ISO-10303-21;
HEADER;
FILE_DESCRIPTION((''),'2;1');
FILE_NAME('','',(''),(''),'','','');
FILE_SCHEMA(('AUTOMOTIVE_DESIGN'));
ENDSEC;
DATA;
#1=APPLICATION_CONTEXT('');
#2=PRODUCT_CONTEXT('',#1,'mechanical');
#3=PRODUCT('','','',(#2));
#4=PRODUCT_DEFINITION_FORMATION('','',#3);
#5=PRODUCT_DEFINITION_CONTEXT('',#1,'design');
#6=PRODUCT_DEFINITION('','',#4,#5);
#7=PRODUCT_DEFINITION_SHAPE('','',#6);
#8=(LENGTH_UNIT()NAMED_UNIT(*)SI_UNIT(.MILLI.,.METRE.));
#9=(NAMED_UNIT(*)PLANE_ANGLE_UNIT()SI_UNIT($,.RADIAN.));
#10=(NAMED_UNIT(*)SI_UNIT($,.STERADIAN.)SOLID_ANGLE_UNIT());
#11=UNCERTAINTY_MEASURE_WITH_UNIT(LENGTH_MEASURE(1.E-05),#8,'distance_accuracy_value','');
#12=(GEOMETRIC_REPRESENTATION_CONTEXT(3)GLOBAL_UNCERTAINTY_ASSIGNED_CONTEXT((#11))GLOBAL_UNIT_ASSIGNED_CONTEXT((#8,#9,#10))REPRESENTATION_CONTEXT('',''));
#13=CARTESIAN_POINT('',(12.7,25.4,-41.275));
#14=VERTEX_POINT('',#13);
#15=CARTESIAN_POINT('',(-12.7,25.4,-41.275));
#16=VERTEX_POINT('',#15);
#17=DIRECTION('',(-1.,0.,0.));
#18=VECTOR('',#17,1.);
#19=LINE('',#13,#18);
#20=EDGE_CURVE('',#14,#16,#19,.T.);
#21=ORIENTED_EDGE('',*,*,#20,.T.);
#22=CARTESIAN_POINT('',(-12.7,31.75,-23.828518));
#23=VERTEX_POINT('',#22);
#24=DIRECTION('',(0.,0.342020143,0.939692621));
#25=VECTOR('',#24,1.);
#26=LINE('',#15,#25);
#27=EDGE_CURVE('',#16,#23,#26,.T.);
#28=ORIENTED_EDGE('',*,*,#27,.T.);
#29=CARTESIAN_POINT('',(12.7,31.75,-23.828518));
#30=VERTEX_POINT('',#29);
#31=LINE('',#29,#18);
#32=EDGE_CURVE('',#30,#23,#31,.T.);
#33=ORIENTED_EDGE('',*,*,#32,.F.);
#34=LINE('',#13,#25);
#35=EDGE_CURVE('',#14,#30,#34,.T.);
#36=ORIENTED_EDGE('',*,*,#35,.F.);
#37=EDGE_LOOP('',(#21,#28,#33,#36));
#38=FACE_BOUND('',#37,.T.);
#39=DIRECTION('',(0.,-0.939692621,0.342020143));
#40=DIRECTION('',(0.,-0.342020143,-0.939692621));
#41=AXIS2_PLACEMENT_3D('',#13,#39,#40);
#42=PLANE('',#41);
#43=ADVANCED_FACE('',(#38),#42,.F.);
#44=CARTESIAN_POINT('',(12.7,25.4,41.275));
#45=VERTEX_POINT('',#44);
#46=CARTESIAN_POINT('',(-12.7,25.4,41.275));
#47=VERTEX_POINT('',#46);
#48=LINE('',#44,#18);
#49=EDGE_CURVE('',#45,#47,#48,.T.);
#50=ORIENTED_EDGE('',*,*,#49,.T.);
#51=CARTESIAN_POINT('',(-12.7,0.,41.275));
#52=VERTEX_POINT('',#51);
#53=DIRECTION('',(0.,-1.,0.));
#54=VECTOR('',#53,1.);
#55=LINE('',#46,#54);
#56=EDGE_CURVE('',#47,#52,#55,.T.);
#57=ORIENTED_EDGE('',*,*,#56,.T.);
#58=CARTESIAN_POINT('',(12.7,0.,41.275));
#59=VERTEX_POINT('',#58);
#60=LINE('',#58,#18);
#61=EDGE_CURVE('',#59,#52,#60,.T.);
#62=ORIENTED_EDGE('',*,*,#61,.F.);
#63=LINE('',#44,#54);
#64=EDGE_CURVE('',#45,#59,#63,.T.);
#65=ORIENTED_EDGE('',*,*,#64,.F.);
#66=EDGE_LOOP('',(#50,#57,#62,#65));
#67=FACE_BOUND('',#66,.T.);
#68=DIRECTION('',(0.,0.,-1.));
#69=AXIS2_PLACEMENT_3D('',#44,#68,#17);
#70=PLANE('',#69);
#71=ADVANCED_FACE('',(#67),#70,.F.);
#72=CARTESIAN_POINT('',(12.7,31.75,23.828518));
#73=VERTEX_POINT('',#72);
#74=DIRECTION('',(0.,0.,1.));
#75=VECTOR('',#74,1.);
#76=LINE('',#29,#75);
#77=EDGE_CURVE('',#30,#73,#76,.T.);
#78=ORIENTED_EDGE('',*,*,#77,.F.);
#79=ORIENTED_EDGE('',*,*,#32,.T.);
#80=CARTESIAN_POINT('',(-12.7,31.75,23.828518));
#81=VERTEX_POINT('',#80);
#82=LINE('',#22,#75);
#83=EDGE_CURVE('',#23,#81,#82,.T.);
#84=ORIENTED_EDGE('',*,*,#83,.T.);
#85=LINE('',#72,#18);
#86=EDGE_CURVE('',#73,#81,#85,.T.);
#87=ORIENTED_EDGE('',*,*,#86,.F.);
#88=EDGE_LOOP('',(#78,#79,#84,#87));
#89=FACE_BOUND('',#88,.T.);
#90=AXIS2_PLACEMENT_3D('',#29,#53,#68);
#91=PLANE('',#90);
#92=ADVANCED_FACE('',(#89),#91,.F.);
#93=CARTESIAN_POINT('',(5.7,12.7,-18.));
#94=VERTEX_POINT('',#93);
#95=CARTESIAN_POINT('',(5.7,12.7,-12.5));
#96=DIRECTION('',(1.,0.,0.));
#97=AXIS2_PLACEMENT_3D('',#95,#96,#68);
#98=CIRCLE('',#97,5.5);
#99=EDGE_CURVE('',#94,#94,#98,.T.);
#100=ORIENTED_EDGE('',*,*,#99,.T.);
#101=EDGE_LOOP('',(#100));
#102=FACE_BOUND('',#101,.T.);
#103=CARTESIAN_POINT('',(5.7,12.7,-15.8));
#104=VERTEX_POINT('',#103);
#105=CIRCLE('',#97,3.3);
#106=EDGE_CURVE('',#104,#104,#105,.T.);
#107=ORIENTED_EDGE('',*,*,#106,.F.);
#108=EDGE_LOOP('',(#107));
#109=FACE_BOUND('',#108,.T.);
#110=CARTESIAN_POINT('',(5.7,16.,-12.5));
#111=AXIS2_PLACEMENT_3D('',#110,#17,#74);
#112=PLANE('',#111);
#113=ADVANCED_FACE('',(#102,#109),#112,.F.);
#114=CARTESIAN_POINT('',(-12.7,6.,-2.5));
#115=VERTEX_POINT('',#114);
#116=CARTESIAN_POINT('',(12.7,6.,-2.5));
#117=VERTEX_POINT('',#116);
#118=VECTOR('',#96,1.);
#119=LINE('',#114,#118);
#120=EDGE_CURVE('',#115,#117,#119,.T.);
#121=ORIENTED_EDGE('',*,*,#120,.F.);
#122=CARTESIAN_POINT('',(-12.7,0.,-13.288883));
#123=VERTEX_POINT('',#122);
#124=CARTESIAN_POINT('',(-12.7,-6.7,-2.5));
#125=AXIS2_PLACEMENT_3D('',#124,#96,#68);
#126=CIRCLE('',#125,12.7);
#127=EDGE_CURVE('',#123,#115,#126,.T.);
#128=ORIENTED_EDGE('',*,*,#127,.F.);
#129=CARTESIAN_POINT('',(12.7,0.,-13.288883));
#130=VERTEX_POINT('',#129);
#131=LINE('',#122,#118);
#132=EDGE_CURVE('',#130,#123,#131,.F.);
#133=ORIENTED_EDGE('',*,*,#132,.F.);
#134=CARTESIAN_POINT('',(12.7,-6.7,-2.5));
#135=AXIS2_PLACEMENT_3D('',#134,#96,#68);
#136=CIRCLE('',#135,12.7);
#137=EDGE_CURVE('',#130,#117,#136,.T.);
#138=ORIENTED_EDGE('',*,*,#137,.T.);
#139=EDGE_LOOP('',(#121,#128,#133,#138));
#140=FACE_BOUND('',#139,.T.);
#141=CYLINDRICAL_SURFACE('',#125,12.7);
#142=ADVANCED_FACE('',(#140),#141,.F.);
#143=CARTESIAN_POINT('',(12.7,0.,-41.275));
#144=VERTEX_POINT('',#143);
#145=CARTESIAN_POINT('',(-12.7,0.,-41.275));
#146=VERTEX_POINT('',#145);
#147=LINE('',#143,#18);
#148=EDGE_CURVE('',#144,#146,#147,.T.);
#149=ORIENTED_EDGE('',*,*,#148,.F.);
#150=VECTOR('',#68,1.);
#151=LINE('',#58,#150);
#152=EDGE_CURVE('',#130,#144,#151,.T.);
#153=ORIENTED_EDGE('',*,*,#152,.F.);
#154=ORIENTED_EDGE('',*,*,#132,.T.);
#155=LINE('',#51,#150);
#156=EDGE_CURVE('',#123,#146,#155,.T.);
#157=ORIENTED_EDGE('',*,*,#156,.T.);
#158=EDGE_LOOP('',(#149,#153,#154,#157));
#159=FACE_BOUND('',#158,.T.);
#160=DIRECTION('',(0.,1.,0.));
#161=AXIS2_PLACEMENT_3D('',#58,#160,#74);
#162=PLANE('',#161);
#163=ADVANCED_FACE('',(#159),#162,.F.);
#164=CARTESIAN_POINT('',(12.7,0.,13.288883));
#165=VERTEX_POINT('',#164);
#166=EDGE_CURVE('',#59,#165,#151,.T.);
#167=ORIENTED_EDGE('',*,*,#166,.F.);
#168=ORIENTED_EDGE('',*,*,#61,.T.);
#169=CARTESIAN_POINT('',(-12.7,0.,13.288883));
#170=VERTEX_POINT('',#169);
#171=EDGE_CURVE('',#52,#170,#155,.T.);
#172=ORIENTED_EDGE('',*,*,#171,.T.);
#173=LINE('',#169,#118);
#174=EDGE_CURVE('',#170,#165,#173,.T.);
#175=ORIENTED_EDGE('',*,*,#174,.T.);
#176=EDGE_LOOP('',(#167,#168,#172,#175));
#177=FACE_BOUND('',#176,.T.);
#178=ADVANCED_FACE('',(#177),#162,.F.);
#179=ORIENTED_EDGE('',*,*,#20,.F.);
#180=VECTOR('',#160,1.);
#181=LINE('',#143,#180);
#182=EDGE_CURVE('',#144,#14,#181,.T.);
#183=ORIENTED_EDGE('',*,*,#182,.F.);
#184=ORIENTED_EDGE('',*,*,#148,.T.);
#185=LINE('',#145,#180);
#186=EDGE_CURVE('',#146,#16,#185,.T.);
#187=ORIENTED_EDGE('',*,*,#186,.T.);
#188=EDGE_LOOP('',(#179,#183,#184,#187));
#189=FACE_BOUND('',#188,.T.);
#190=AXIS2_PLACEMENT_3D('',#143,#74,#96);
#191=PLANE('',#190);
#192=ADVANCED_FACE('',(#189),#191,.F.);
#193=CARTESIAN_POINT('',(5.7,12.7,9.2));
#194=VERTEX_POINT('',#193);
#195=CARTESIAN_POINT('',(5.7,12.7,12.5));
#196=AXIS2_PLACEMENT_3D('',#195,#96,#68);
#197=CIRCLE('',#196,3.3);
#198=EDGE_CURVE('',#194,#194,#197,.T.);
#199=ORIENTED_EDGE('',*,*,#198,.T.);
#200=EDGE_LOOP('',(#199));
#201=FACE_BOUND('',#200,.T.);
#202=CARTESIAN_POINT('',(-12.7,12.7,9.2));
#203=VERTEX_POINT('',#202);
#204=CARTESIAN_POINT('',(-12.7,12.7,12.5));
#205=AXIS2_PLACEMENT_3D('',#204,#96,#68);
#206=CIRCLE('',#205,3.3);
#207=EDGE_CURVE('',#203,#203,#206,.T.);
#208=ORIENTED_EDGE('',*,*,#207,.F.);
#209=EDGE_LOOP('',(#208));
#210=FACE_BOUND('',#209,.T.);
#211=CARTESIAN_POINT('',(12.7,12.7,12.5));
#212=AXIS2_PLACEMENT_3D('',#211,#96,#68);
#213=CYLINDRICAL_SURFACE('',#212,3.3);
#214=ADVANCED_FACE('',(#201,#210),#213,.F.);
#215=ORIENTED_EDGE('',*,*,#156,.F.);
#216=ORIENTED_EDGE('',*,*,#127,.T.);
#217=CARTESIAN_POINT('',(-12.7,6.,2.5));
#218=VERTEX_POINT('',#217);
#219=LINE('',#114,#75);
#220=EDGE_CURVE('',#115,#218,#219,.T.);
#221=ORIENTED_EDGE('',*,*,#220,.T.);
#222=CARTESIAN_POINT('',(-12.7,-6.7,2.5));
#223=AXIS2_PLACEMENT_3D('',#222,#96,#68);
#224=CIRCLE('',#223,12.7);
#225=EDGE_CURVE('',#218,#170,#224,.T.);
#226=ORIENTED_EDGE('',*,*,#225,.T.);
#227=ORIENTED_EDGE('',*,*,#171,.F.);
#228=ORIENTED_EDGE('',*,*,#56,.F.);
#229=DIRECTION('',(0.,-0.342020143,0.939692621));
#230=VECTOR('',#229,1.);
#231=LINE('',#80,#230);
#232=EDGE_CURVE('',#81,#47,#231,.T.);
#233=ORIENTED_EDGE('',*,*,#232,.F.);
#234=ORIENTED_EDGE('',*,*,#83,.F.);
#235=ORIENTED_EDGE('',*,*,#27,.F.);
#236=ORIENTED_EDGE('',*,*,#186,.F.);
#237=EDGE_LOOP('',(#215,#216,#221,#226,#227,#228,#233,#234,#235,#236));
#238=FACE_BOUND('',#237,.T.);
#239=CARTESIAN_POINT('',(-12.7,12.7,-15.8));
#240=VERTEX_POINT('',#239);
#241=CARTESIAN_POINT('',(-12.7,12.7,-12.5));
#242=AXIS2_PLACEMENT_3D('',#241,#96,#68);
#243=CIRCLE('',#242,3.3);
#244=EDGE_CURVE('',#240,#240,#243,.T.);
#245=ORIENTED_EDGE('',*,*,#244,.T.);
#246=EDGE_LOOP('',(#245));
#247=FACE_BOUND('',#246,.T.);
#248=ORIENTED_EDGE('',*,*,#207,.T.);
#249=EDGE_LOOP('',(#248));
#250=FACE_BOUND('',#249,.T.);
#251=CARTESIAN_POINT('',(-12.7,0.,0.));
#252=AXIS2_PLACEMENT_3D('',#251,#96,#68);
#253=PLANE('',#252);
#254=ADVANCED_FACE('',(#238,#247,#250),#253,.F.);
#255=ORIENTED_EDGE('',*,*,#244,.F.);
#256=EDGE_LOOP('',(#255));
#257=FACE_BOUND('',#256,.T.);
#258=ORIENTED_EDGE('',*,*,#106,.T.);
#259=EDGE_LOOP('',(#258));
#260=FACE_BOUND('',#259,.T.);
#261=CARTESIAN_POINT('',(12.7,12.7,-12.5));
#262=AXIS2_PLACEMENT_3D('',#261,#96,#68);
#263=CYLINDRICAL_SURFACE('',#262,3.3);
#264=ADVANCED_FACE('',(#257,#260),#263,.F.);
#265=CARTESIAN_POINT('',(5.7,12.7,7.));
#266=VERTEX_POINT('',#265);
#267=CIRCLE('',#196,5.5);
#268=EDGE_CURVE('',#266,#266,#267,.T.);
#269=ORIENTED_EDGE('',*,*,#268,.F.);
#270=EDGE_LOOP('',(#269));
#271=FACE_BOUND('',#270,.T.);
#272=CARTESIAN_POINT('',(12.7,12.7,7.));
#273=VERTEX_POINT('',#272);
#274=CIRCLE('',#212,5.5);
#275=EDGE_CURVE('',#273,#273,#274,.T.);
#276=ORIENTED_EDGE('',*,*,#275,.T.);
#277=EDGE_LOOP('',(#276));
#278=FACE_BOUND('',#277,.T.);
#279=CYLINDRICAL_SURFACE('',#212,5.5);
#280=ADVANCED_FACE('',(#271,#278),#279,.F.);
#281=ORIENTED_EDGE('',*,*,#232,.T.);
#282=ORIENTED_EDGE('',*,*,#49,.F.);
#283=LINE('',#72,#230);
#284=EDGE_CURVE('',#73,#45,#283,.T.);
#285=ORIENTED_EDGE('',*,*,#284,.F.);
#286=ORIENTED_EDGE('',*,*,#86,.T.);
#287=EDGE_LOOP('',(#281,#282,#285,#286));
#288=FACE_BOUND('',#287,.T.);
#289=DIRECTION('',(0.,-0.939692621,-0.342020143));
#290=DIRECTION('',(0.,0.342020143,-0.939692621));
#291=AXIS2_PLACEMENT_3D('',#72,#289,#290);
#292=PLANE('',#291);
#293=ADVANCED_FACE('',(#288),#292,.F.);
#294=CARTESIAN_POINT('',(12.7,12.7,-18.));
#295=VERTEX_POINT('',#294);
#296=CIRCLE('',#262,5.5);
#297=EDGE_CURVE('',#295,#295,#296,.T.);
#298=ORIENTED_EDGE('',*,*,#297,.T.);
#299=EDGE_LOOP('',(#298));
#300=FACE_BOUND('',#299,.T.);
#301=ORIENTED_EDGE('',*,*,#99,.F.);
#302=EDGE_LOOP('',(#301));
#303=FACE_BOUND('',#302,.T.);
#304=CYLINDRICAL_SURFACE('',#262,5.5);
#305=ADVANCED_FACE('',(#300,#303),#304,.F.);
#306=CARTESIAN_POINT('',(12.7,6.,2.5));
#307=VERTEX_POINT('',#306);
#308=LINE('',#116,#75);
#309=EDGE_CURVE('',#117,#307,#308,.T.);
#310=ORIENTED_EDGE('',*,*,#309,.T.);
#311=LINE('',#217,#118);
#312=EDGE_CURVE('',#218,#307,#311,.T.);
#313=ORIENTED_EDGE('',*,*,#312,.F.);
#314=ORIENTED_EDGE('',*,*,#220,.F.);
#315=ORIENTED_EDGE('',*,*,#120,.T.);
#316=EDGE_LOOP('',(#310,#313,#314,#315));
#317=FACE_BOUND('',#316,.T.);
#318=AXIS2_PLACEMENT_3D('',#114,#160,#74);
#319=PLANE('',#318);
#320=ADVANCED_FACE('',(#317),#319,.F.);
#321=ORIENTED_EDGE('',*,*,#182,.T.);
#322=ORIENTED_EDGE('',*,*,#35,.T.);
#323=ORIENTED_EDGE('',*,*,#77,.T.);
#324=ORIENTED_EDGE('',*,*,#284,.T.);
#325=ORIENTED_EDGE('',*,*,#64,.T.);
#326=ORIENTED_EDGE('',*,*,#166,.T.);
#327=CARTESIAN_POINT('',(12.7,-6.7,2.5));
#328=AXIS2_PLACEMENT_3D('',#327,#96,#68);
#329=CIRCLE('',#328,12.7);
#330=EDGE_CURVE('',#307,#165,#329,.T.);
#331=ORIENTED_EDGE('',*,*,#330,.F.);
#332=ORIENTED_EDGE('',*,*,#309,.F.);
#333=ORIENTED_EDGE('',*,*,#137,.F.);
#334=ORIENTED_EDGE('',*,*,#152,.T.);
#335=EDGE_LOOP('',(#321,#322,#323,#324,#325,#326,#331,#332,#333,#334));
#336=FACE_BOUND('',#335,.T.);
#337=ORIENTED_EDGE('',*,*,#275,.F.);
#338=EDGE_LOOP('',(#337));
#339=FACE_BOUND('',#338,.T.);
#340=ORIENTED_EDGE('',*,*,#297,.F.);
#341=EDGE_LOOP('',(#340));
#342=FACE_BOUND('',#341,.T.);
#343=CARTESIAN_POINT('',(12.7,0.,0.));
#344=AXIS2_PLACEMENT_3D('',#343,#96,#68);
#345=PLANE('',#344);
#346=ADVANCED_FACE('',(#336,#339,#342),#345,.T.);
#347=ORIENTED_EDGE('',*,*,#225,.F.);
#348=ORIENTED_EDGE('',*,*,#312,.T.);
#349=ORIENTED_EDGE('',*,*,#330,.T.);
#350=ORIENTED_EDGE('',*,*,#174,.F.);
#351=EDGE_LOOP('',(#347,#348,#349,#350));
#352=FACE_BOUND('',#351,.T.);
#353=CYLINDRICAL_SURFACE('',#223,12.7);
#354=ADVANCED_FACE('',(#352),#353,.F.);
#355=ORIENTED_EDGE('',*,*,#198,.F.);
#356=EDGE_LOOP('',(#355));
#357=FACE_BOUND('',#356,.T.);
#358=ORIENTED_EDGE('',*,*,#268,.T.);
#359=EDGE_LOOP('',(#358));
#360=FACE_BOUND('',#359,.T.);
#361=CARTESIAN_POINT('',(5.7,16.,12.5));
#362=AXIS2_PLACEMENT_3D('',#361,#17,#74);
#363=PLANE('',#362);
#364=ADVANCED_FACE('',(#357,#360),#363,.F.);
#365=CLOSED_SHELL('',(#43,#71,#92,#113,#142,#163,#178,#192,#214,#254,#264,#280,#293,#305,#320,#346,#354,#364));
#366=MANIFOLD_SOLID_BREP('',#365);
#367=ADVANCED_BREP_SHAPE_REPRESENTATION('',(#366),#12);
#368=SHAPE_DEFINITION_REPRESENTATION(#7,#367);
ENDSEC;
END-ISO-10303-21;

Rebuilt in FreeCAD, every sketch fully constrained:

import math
import FreeCAD as App
import Part
import Sketcher
from FreeCAD import Vector
Q = App.Units.Quantity

doc = App.newDocument("Part")
body = doc.addObject("PartDesign::Body", "Body")

sketch1 = body.newObject("Sketcher::SketchObject", "Sketch")
sketch1.AttachmentSupport = (doc.getObject("YZ_Plane"), [""])
sketch1.MapMode = "FlatFace"
sketch1.addGeometry([
    Part.LineSegment(Vector(0, 41.275, 0), Vector(0, -41.275, 0)),
    Part.LineSegment(Vector(0, -41.275, 0), Vector(25.4, -41.275, 0)),
    Part.LineSegment(Vector(25.4, -41.275, 0), Vector(31.75, -23.828518, 0)),
    Part.LineSegment(Vector(31.75, -23.828518, 0), Vector(31.75, 23.828518, 0)),
    Part.LineSegment(Vector(31.75, 23.828518, 0), Vector(25.4, 41.275, 0)),
    Part.LineSegment(Vector(25.4, 41.275, 0), Vector(0, 41.275, 0)),
], False)
sketch1.addConstraint([
    Sketcher.Constraint("Coincident", 0, 2, 1, 1),
    Sketcher.Constraint("Coincident", 1, 2, 2, 1),
    Sketcher.Constraint("Coincident", 2, 2, 3, 1),
    Sketcher.Constraint("Coincident", 3, 2, 4, 1),
    Sketcher.Constraint("Coincident", 4, 2, 5, 1),
    Sketcher.Constraint("Coincident", 5, 2, 0, 1),
    Sketcher.Constraint("Vertical", 0),
    Sketcher.Constraint("Horizontal", 1),
    Sketcher.Constraint("Vertical", 3),
    Sketcher.Constraint("Horizontal", 5),
    Sketcher.Constraint("Symmetric", 0, 2, 5, 2, -1, 1),
    Sketcher.Constraint("Vertical", 1, 2, 4, 2),
    Sketcher.Constraint("Equal", 2, 4),
    Sketcher.Constraint("Angle", 2, Q("70 deg")),
    Sketcher.Constraint("DistanceX", 1, 1, 1, 2, 25.4),
    Sketcher.Constraint("DistanceY", 0, 2, 0, 1, 82.55),
    Sketcher.Constraint("DistanceX", -1, 1, 2, 2, 31.75),
])
pad1 = body.newObject("PartDesign::Pad", "Pad")
pad1.Profile = sketch1
pad1.Length = 25.4
pad1.Midplane = True

sketch2 = body.newObject("Sketcher::SketchObject", "Sketch001")
sketch2.AttachmentSupport = (doc.getObject("YZ_Plane"), [""])
sketch2.MapMode = "FlatFace"
sketch2.AttachmentOffset = App.Placement(Vector(0, 0, 12.7), App.Rotation())
sketch2.addGeometry([
    Part.Circle(Vector(12.7, 12.5, 0), Vector(0, 0, 1), 3.3),
    Part.Circle(Vector(12.7, -12.5, 0), Vector(0, 0, 1), 3.3),
], False)
sketch2.addConstraint([
    Sketcher.Constraint("Equal", 0, 1),
    Sketcher.Constraint("Symmetric", 0, 3, 1, 3, -1),
    Sketcher.Constraint("Diameter", 0, 6.6),
    Sketcher.Constraint("DistanceY", 1, 3, 0, 3, 25.0),
    Sketcher.Constraint("DistanceX", -1, 1, 0, 3, 12.7),
])
doc.recompute()
hole = body.newObject("PartDesign::Hole", "Hole")
hole.Profile = sketch2
hole.ThreadType = "None"
hole.Diameter = 6.6
hole.DepthType = "ThroughAll"
hole.HoleCutType = "Counterbore"
hole.HoleCutDiameter = 11
hole.HoleCutDepth = 7

sketch3 = body.newObject("Sketcher::SketchObject", "Sketch002")
sketch3.AttachmentSupport = (doc.getObject("YZ_Plane"), [""])
sketch3.MapMode = "FlatFace"
sketch3.AttachmentOffset = App.Placement(Vector(0, 0, 12.7), App.Rotation())
sketch3.addGeometry([
    Part.LineSegment(Vector(-15, -15.2, 0), Vector(-6.7, -15.2, 0)),
    Part.ArcOfCircle(Part.Circle(Vector(-6.7, -2.5, 0), Vector(0, 0, 1), 12.7), math.radians(-90), math.radians(0)),
    Part.LineSegment(Vector(6, -2.5, 0), Vector(6, 2.5, 0)),
    Part.ArcOfCircle(Part.Circle(Vector(-6.7, 2.5, 0), Vector(0, 0, 1), 12.7), math.radians(0), math.radians(90)),
    Part.LineSegment(Vector(-6.7, 15.2, 0), Vector(-15, 15.2, 0)),
    Part.LineSegment(Vector(-15, 15.2, 0), Vector(-15, -15.2, 0)),
], False)
sketch3.addConstraint([
    Sketcher.Constraint("Tangent", 0, 2, 1, 1),
    Sketcher.Constraint("Tangent", 1, 2, 2, 1),
    Sketcher.Constraint("Tangent", 2, 2, 3, 1),
    Sketcher.Constraint("Tangent", 3, 2, 4, 1),
    Sketcher.Constraint("Coincident", 4, 2, 5, 1),
    Sketcher.Constraint("Coincident", 5, 2, 0, 1),
    Sketcher.Constraint("Horizontal", 0),
    Sketcher.Constraint("Vertical", 2),
    Sketcher.Constraint("Horizontal", 4),
    Sketcher.Constraint("Vertical", 5),
    Sketcher.Constraint("Equal", 1, 3),
    Sketcher.Constraint("Radius", 1, 12.7),
    Sketcher.Constraint("DistanceY", 2, 1, 2, 2, 5.0),
    Sketcher.Constraint("DistanceX", 0, 1, 0, 2, 8.3),
    Sketcher.Constraint("DistanceX", -1, 1, 1, 2, 6.0),
    Sketcher.Constraint("DistanceY", 1, 3, -1, 1, 2.5),
])
pocket1 = body.newObject("PartDesign::Pocket", "Pocket")
pocket1.Profile = sketch3
pocket1.Type = "ThroughAll"

doc.recompute()
